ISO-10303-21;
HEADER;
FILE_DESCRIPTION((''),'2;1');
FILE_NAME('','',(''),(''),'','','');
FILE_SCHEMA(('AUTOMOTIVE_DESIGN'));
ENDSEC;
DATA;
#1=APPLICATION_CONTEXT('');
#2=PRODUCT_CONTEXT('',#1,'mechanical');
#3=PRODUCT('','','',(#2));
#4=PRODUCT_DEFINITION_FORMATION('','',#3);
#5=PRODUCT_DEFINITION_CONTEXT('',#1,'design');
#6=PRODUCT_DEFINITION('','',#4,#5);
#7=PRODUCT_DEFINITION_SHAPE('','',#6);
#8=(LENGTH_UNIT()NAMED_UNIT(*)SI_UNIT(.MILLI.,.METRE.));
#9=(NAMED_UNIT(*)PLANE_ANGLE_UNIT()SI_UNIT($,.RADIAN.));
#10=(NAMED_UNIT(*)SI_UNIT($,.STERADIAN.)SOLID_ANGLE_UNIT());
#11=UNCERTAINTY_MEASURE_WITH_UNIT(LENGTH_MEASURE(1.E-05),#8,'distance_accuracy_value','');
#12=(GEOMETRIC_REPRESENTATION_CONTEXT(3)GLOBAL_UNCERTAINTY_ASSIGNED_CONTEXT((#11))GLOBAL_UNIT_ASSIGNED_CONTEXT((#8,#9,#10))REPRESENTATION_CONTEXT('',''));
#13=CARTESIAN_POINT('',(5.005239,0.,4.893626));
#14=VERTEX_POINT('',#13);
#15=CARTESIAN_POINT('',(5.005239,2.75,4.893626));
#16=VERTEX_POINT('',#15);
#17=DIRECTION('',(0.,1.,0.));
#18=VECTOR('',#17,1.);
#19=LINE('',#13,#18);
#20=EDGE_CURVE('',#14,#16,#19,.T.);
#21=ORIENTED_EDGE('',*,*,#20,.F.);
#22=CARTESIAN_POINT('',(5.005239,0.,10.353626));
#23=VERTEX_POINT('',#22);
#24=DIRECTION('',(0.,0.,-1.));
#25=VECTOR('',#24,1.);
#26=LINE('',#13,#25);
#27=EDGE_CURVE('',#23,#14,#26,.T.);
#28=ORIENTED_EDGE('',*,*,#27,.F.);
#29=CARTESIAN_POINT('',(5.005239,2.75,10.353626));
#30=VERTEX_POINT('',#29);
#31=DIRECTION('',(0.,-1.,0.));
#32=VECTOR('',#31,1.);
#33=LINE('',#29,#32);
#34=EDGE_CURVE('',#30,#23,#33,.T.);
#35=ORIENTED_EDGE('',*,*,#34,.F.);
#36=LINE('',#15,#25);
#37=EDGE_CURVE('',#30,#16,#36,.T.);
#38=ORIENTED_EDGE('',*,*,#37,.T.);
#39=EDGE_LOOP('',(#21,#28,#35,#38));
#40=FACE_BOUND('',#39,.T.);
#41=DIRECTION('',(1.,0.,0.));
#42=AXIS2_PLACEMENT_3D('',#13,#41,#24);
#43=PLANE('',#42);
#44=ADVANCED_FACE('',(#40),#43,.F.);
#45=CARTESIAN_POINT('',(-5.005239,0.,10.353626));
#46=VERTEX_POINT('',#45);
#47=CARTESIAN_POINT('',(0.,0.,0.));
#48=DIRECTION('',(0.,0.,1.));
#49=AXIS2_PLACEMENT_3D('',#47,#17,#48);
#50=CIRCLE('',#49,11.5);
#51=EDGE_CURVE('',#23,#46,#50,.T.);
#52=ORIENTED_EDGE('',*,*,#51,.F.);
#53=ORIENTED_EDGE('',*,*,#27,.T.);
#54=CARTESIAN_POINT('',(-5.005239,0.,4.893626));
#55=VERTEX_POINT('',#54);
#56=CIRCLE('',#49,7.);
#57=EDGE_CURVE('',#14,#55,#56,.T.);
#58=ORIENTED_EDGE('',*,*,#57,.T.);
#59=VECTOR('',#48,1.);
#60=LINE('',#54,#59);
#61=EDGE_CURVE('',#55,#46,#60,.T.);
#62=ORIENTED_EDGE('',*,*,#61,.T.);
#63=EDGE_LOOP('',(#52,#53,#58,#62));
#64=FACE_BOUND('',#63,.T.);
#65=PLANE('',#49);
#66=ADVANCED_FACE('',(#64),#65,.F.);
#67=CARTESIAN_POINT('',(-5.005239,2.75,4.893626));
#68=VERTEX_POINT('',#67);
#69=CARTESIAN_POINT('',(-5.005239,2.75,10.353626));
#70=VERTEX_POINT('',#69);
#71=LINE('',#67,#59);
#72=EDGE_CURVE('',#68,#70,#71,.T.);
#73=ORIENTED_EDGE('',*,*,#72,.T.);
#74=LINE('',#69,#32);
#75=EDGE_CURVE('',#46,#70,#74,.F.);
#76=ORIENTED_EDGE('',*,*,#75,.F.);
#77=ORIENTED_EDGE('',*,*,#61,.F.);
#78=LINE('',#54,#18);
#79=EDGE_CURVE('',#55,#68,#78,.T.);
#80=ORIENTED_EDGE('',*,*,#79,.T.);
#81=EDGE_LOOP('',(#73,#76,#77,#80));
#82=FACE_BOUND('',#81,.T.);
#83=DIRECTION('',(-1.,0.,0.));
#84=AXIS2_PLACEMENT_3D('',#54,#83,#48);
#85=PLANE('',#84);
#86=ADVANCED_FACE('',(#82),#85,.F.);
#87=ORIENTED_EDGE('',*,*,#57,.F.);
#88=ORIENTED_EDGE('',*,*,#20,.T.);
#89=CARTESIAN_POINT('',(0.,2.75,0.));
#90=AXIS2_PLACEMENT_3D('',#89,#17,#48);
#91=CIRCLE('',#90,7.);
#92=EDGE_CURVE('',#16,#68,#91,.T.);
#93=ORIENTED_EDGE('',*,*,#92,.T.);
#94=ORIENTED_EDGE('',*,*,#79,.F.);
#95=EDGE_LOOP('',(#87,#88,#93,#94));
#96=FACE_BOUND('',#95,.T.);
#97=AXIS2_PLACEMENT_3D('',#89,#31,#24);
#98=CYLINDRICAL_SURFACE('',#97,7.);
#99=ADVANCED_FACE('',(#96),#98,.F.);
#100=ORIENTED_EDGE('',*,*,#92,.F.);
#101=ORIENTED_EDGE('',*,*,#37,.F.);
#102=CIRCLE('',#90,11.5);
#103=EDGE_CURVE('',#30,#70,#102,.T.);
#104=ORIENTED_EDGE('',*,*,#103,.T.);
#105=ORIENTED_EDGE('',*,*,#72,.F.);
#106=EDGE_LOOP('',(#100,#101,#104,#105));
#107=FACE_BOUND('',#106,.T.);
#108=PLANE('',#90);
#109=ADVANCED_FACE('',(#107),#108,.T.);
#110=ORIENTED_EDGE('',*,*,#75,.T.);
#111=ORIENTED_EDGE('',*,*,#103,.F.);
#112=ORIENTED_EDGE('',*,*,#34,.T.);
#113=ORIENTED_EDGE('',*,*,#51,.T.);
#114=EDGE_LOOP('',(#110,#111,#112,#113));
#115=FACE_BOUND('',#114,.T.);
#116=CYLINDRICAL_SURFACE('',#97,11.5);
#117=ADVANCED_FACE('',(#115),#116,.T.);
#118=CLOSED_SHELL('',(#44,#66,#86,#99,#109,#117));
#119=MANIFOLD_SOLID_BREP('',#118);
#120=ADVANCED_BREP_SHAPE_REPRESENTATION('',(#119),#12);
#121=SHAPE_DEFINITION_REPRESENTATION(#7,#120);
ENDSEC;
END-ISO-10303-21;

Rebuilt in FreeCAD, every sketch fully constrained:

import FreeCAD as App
import Part
import Sketcher
from FreeCAD import Vector

doc = App.newDocument("Part")
body = doc.addObject("PartDesign::Body", "Body")

# Sketch on XZ plane
sketch1 = body.newObject("Sketcher::SketchObject", "Sketch")
sketch1.AttachmentSupport = (doc.getObject("XZ_Plane"), [""])
sketch1.MapMode = "FlatFace"
sketch1.addGeometry([
    Part.Circle(Vector(0, 0, 0), Vector(0, 0, 1), 12),
    Part.Circle(Vector(0, 0, 0), Vector(0, 0, 1), 7),
], False)
sketch1.addConstraint([
    Sketcher.Constraint("Coincident", 0, 3, -1, 1),
    Sketcher.Constraint("Coincident", 1, 3, -1, 1),
    Sketcher.Constraint("Diameter", 0, 23.0),
    Sketcher.Constraint("Diameter", 1, 14.0),
])
pad1 = body.newObject("PartDesign::Pad", "Pad")
pad1.Profile = sketch1
pad1.Length = 2.75
pad1.Reversed = True

# Sketch on XZ plane
sketch2 = body.newObject("Sketcher::SketchObject", "Sketch001")
sketch2.AttachmentSupport = (doc.getObject("XZ_Plane"), [""])
sketch2.MapMode = "FlatFace"
sketch2.AttachmentOffset = App.Placement(Vector(0, 0, -2.75), App.Rotation())
sketch2.addGeometry([
    Part.LineSegment(Vector(-5, 5, 0), Vector(-5, 12, 0)),
    Part.LineSegment(Vector(-5, 12, 0), Vector(5, 12, 0)),
    Part.LineSegment(Vector(5, 12, 0), Vector(5, 5, 0)),
    Part.LineSegment(Vector(5, 5, 0), Vector(-5, 5, 0)),
], False)
sketch2.addConstraint([
    Sketcher.Constraint("Coincident", 0, 2, 1, 1),
    Sketcher.Constraint("Coincident", 1, 2, 2, 1),
    Sketcher.Constraint("Coincident", 2, 2, 3, 1),
    Sketcher.Constraint("Coincident", 3, 2, 0, 1),
    Sketcher.Constraint("Vertical", 0),
    Sketcher.Constraint("Horizontal", 1),
    Sketcher.Constraint("Vertical", 2),
    Sketcher.Constraint("Horizontal", 3),
    Sketcher.Constraint("DistanceY", -1, 1, 0, 2, 11.5),
    Sketcher.Constraint("DistanceX", 1, 1, 1, 2, 10.010479),
    Sketcher.Constraint("DistanceY", 0, 1, 0, 2, 6.606374),
    Sketcher.Constraint("DistanceX", 0, 2, -1, 1, 5.005239),
])
pocket1 = body.newObject("PartDesign::Pocket", "Pocket")
pocket1.Profile = sketch2
pocket1.Type = "ThroughAll"
pocket1.Reversed = True

doc.recompute()
